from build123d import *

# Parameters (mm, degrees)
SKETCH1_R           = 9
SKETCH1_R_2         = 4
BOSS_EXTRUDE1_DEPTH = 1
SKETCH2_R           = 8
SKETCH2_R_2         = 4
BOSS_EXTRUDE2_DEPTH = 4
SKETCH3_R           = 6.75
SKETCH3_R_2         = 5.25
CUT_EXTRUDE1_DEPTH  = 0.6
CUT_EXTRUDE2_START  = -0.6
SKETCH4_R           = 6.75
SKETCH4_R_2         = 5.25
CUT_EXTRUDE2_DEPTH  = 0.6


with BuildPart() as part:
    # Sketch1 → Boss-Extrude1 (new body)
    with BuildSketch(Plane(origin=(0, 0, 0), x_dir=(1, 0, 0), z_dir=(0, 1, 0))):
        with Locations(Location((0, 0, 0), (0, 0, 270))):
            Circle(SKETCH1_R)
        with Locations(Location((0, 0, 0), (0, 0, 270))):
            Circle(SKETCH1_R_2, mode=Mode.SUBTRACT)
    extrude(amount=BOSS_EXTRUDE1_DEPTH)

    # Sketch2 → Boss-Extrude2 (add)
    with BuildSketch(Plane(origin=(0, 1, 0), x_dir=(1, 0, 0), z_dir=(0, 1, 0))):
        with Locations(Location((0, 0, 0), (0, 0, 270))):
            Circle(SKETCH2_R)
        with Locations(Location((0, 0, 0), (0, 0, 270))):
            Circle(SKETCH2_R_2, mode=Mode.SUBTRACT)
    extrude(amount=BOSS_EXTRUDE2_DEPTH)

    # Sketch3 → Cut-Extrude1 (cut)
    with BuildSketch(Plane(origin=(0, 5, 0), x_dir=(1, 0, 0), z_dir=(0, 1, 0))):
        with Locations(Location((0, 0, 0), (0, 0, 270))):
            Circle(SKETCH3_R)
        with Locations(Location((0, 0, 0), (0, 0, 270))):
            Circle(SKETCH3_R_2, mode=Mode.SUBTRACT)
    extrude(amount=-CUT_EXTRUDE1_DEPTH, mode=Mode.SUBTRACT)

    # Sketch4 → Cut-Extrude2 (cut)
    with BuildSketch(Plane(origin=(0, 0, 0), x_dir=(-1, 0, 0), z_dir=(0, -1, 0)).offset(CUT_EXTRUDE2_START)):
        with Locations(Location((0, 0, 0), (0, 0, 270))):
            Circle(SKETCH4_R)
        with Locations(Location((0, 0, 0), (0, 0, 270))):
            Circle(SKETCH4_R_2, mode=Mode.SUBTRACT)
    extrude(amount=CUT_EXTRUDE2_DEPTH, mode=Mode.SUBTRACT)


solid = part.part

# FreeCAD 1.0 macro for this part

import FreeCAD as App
import Part
import Sketcher
from FreeCAD import Vector
Q = App.Units.Quantity

doc = App.newDocument("Part")
body = doc.addObject("PartDesign::Body", "Body")

sketch1 = doc.addObject("Sketcher::SketchObject", "Sketch")
body.addObject(sketch1)
sketch1.AttachmentSupport = (doc.XZ_Plane, [""])
sketch1.MapMode = "FlatFace"
sketch1.addGeometry([
    Part.Circle(Vector(0, 0, 0), Vector(0, 0, 1), 9),
    Part.Circle(Vector(0, 0, 0), Vector(0, 0, 1), 4),
], False)
sketch1.addConstraint([
    Sketcher.Constraint("Coincident", 0, 3, -1, 1),
    Sketcher.Constraint("Coincident", 1, 3, -1, 1),
    Sketcher.Constraint("Diameter", 0, Q("18 mm")),
    Sketcher.Constraint("Diameter", 1, Q("8 mm")),
])
pad1 = doc.addObject("PartDesign::Pad", "Pad")
body.addObject(pad1)
pad1.Profile = sketch1
pad1.Length = 1
pad1.Reversed = True

sketch2 = doc.addObject("Sketcher::SketchObject", "Sketch001")
body.addObject(sketch2)
sketch2.AttachmentSupport = (doc.XZ_Plane, [""])
sketch2.MapMode = "FlatFace"
sketch2.AttachmentOffset = App.Placement(Vector(0, 0, -1), App.Rotation())
sketch2.addGeometry([
    Part.Circle(Vector(0, 0, 0), Vector(0, 0, 1), 8),
    Part.Circle(Vector(0, 0, 0), Vector(0, 0, 1), 4),
], False)
sketch2.addConstraint([
    Sketcher.Constraint("Coincident", 0, 3, -1, 1),
    Sketcher.Constraint("Coincident", 1, 3, -1, 1),
    Sketcher.Constraint("Diameter", 0, Q("16 mm")),
    Sketcher.Constraint("Diameter", 1, Q("8 mm")),
])
pad2 = doc.addObject("PartDesign::Pad", "Pad001")
body.addObject(pad2)
pad2.Profile = sketch2
pad2.Length = 4
pad2.Reversed = True

sketch3 = doc.addObject("Sketcher::SketchObject", "Sketch002")
body.addObject(sketch3)
sketch3.AttachmentSupport = (doc.XZ_Plane, [""])
sketch3.MapMode = "FlatFace"
sketch3.AttachmentOffset = App.Placement(Vector(0, 0, -5), App.Rotation())
sketch3.addGeometry([
    Part.Circle(Vector(0, 0, 0), Vector(0, 0, 1), 7),
    Part.Circle(Vector(0, 0, 0), Vector(0, 0, 1), 5),
], False)
sketch3.addConstraint([
    Sketcher.Constraint("Coincident", 0, 3, -1, 1),
    Sketcher.Constraint("Coincident", 1, 3, -1, 1),
    Sketcher.Constraint("Diameter", 0, Q("13.5 mm")),
    Sketcher.Constraint("Diameter", 1, Q("10.5 mm")),
])
pocket1 = doc.addObject("PartDesign::Pocket", "Pocket")
body.addObject(pocket1)
pocket1.Profile = sketch3
pocket1.Length = 0.6
pocket1.Reversed = True

sketch4 = doc.addObject("Sketcher::SketchObject", "Sketch003")
body.addObject(sketch4)
sketch4.AttachmentSupport = (doc.XZ_Plane, [""])
sketch4.MapMode = "FlatFace"
sketch4.AttachmentOffset = App.Placement(Vector(0, 0, -0.6), App.Rotation())
sketch4.addGeometry([
    Part.Circle(Vector(0, 0, 0), Vector(0, 0, 1), 7),
    Part.Circle(Vector(0, 0, 0), Vector(0, 0, 1), 5),
], False)
sketch4.addConstraint([
    Sketcher.Constraint("Coincident", 0, 3, -1, 1),
    Sketcher.Constraint("Coincident", 1, 3, -1, 1),
    Sketcher.Constraint("Diameter", 0, Q("13.5 mm")),
    Sketcher.Constraint("Diameter", 1, Q("10.5 mm")),
])
pocket2 = doc.addObject("PartDesign::Pocket", "Pocket001")
body.addObject(pocket2)
pocket2.Profile = sketch4
pocket2.Length = 0.6
pocket2.Reversed = True

doc.recompute()
